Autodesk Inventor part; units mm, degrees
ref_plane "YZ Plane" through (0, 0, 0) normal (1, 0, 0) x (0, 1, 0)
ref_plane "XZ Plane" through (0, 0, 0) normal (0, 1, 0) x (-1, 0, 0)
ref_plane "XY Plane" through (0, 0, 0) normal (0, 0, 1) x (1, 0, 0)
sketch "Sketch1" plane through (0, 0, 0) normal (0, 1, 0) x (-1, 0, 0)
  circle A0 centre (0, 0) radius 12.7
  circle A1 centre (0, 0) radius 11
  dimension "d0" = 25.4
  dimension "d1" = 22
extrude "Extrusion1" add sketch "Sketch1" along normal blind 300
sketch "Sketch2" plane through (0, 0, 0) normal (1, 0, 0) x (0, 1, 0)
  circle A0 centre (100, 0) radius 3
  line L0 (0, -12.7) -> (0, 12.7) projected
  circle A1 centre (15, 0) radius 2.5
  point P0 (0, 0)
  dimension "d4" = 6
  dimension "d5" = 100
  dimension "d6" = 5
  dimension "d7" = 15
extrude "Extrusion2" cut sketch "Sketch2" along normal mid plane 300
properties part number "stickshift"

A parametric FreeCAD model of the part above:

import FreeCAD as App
import Part
import Sketcher

V = App.Vector

doc = App.newDocument("Part")
params = doc.addObject("Spreadsheet::Sheet", "Params")
for row, (alias, value) in enumerate([
    ("sketch1_diameter", "22 mm"),
    ("sketch1_diameter2", "25.4 mm"),
    ("pad1_length", "300 mm"),
    ("sketch2_diameter", "6 mm"),
    ("sketch2_diameter2", "5 mm"),
    ("pocket1_length", "300 mm"),
], start=1):
    params.set(f"A{row}", alias)
    params.set(f"B{row}", "=" + value)
    params.setAlias(f"B{row}", alias)

body = doc.addObject("PartDesign::Body", "Body")

sketch1 = body.newObject("Sketcher::SketchObject", "Sketch")
sketch1.AttachmentSupport = (doc.getObject("XZ_Plane"), [""])
sketch1.MapMode = "FlatFace"
sketch1.addGeometry(Part.Circle(V(0, 0, 0), V(0, 0, 1), 13), False)
sketch1.addGeometry(Part.Circle(V(0, 0, 0), V(0, 0, 1), 11), False)
sketch1.addConstraint(Sketcher.Constraint("Coincident", 0, 3, -1, 1))
sketch1.addConstraint(Sketcher.Constraint("Coincident", 1, 3, -1, 1))
sketch1.addConstraint(Sketcher.Constraint("Diameter", 1, 22.0))
sketch1.addConstraint(Sketcher.Constraint("Diameter", 0, 25.4))
sketch1.setExpression("Constraints[2]", "Params.sketch1_diameter")
sketch1.setExpression("Constraints[3]", "Params.sketch1_diameter2")
pad1 = body.newObject("PartDesign::Pad", "Pad")
pad1.Profile = sketch1
pad1.setExpression("Length", "Params.pad1_length")
pad1.Reversed = True

sketch2 = body.newObject("Sketcher::SketchObject", "Sketch001")
sketch2.AttachmentSupport = (doc.getObject("YZ_Plane"), [""])
sketch2.MapMode = "FlatFace"
sketch2.addGeometry(Part.Circle(V(100, 0, 0), V(0, 0, 1), 3), False)
sketch2.addGeometry(Part.Circle(V(15, 0, 0), V(0, 0, 1), 2.5), False)
sketch2.addConstraint(Sketcher.Constraint("PointOnObject", 0, 3, -1))
sketch2.addConstraint(Sketcher.Constraint("PointOnObject", 1, 3, -1))
sketch2.addConstraint(Sketcher.Constraint("Diameter", 0, 6.0))
sketch2.addConstraint(Sketcher.Constraint("Diameter", 1, 5.0))
sketch2.addConstraint(Sketcher.Constraint("DistanceX", -1, 1, 0, 3, 100.0))
sketch2.addConstraint(Sketcher.Constraint("DistanceX", -1, 1, 1, 3, 15.0))
sketch2.setExpression("Constraints[2]", "Params.sketch2_diameter")
sketch2.setExpression("Constraints[3]", "Params.sketch2_diameter2")
pocket1 = body.newObject("PartDesign::Pocket", "Pocket")
pocket1.Profile = sketch2
pocket1.setExpression("Length", "Params.pocket1_length")
pocket1.Midplane = True

doc.recompute()
